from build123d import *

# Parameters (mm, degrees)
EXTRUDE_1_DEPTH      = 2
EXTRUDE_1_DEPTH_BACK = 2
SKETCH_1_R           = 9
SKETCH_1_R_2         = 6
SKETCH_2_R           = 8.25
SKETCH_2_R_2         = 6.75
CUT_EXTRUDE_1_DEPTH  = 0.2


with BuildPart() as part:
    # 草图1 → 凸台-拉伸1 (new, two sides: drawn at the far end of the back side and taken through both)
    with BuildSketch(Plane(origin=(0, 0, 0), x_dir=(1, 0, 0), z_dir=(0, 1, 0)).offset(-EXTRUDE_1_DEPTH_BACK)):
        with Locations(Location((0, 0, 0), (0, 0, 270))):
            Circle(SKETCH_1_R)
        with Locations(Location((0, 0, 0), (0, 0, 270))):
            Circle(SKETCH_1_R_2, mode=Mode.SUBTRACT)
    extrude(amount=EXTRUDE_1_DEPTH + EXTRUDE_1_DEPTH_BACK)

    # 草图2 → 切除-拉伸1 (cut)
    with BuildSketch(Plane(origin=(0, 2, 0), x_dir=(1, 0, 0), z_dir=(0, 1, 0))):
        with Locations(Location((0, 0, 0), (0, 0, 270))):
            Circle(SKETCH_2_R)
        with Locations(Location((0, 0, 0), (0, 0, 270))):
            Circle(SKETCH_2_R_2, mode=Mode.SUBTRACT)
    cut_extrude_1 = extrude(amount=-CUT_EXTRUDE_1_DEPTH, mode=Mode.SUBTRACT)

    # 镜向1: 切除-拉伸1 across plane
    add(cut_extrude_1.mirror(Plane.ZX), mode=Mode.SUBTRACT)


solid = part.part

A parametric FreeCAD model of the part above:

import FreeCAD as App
import Part
import Sketcher
Q = App.Units.Quantity

doc = App.newDocument("Part")
body = doc.addObject("PartDesign::Body", "Body")

sketch1 = doc.addObject("Sketcher::SketchObject", "Sketch")
body.addObject(sketch1)
sketch1.AttachmentSupport = (doc.XZ_Plane, [""])
sketch1.MapMode = "FlatFace"
sketch1.addGeometry(Part.Circle(App.Vector(0, 0, 0), App.Vector(0, 0, 1), 9), False)
sketch1.addGeometry(Part.Circle(App.Vector(0, 0, 0), App.Vector(0, 0, 1), 6), False)
sketch1.addConstraint(Sketcher.Constraint("Coincident", 0, 3, -1, 1))
sketch1.addConstraint(Sketcher.Constraint("Coincident", 1, 3, -1, 1))
sketch1.addConstraint(Sketcher.Constraint("Diameter", 0, Q("18 mm")))
sketch1.addConstraint(Sketcher.Constraint("Diameter", 1, Q("12 mm")))
pad1 = doc.addObject("PartDesign::Pad", "Pad")
body.addObject(pad1)
pad1.Profile = sketch1
pad1.Type = "TwoLengths"
pad1.Length = 2
pad1.Length2 = 2
pad1.Reversed = True

sketch2 = doc.addObject("Sketcher::SketchObject", "Sketch001")
body.addObject(sketch2)
sketch2.AttachmentSupport = (doc.XZ_Plane, [""])
sketch2.MapMode = "FlatFace"
sketch2.AttachmentOffset = App.Placement(App.Vector(0, 0, -2), App.Rotation())
sketch2.addGeometry(Part.Circle(App.Vector(0, 0, 0), App.Vector(0, 0, 1), 8), False)
sketch2.addGeometry(Part.Circle(App.Vector(0, 0, 0), App.Vector(0, 0, 1), 7), False)
sketch2.addConstraint(Sketcher.Constraint("Coincident", 0, 3, -1, 1))
sketch2.addConstraint(Sketcher.Constraint("Coincident", 1, 3, -1, 1))
sketch2.addConstraint(Sketcher.Constraint("Diameter", 0, Q("16.5 mm")))
sketch2.addConstraint(Sketcher.Constraint("Diameter", 1, Q("13.5 mm")))
pocket1 = doc.addObject("PartDesign::Pocket", "Pocket")
body.addObject(pocket1)
pocket1.Profile = sketch2
pocket1.Length = 0.2
pocket1.Reversed = True
doc.recompute()

mirrored = doc.addObject("PartDesign::Mirrored", "Mirrored")
body.addObject(mirrored)
mirrored.Originals = [pocket1]
mirrored.MirrorPlane = (doc.XZ_Plane, [""])
body.Tip = mirrored

doc.recompute()
